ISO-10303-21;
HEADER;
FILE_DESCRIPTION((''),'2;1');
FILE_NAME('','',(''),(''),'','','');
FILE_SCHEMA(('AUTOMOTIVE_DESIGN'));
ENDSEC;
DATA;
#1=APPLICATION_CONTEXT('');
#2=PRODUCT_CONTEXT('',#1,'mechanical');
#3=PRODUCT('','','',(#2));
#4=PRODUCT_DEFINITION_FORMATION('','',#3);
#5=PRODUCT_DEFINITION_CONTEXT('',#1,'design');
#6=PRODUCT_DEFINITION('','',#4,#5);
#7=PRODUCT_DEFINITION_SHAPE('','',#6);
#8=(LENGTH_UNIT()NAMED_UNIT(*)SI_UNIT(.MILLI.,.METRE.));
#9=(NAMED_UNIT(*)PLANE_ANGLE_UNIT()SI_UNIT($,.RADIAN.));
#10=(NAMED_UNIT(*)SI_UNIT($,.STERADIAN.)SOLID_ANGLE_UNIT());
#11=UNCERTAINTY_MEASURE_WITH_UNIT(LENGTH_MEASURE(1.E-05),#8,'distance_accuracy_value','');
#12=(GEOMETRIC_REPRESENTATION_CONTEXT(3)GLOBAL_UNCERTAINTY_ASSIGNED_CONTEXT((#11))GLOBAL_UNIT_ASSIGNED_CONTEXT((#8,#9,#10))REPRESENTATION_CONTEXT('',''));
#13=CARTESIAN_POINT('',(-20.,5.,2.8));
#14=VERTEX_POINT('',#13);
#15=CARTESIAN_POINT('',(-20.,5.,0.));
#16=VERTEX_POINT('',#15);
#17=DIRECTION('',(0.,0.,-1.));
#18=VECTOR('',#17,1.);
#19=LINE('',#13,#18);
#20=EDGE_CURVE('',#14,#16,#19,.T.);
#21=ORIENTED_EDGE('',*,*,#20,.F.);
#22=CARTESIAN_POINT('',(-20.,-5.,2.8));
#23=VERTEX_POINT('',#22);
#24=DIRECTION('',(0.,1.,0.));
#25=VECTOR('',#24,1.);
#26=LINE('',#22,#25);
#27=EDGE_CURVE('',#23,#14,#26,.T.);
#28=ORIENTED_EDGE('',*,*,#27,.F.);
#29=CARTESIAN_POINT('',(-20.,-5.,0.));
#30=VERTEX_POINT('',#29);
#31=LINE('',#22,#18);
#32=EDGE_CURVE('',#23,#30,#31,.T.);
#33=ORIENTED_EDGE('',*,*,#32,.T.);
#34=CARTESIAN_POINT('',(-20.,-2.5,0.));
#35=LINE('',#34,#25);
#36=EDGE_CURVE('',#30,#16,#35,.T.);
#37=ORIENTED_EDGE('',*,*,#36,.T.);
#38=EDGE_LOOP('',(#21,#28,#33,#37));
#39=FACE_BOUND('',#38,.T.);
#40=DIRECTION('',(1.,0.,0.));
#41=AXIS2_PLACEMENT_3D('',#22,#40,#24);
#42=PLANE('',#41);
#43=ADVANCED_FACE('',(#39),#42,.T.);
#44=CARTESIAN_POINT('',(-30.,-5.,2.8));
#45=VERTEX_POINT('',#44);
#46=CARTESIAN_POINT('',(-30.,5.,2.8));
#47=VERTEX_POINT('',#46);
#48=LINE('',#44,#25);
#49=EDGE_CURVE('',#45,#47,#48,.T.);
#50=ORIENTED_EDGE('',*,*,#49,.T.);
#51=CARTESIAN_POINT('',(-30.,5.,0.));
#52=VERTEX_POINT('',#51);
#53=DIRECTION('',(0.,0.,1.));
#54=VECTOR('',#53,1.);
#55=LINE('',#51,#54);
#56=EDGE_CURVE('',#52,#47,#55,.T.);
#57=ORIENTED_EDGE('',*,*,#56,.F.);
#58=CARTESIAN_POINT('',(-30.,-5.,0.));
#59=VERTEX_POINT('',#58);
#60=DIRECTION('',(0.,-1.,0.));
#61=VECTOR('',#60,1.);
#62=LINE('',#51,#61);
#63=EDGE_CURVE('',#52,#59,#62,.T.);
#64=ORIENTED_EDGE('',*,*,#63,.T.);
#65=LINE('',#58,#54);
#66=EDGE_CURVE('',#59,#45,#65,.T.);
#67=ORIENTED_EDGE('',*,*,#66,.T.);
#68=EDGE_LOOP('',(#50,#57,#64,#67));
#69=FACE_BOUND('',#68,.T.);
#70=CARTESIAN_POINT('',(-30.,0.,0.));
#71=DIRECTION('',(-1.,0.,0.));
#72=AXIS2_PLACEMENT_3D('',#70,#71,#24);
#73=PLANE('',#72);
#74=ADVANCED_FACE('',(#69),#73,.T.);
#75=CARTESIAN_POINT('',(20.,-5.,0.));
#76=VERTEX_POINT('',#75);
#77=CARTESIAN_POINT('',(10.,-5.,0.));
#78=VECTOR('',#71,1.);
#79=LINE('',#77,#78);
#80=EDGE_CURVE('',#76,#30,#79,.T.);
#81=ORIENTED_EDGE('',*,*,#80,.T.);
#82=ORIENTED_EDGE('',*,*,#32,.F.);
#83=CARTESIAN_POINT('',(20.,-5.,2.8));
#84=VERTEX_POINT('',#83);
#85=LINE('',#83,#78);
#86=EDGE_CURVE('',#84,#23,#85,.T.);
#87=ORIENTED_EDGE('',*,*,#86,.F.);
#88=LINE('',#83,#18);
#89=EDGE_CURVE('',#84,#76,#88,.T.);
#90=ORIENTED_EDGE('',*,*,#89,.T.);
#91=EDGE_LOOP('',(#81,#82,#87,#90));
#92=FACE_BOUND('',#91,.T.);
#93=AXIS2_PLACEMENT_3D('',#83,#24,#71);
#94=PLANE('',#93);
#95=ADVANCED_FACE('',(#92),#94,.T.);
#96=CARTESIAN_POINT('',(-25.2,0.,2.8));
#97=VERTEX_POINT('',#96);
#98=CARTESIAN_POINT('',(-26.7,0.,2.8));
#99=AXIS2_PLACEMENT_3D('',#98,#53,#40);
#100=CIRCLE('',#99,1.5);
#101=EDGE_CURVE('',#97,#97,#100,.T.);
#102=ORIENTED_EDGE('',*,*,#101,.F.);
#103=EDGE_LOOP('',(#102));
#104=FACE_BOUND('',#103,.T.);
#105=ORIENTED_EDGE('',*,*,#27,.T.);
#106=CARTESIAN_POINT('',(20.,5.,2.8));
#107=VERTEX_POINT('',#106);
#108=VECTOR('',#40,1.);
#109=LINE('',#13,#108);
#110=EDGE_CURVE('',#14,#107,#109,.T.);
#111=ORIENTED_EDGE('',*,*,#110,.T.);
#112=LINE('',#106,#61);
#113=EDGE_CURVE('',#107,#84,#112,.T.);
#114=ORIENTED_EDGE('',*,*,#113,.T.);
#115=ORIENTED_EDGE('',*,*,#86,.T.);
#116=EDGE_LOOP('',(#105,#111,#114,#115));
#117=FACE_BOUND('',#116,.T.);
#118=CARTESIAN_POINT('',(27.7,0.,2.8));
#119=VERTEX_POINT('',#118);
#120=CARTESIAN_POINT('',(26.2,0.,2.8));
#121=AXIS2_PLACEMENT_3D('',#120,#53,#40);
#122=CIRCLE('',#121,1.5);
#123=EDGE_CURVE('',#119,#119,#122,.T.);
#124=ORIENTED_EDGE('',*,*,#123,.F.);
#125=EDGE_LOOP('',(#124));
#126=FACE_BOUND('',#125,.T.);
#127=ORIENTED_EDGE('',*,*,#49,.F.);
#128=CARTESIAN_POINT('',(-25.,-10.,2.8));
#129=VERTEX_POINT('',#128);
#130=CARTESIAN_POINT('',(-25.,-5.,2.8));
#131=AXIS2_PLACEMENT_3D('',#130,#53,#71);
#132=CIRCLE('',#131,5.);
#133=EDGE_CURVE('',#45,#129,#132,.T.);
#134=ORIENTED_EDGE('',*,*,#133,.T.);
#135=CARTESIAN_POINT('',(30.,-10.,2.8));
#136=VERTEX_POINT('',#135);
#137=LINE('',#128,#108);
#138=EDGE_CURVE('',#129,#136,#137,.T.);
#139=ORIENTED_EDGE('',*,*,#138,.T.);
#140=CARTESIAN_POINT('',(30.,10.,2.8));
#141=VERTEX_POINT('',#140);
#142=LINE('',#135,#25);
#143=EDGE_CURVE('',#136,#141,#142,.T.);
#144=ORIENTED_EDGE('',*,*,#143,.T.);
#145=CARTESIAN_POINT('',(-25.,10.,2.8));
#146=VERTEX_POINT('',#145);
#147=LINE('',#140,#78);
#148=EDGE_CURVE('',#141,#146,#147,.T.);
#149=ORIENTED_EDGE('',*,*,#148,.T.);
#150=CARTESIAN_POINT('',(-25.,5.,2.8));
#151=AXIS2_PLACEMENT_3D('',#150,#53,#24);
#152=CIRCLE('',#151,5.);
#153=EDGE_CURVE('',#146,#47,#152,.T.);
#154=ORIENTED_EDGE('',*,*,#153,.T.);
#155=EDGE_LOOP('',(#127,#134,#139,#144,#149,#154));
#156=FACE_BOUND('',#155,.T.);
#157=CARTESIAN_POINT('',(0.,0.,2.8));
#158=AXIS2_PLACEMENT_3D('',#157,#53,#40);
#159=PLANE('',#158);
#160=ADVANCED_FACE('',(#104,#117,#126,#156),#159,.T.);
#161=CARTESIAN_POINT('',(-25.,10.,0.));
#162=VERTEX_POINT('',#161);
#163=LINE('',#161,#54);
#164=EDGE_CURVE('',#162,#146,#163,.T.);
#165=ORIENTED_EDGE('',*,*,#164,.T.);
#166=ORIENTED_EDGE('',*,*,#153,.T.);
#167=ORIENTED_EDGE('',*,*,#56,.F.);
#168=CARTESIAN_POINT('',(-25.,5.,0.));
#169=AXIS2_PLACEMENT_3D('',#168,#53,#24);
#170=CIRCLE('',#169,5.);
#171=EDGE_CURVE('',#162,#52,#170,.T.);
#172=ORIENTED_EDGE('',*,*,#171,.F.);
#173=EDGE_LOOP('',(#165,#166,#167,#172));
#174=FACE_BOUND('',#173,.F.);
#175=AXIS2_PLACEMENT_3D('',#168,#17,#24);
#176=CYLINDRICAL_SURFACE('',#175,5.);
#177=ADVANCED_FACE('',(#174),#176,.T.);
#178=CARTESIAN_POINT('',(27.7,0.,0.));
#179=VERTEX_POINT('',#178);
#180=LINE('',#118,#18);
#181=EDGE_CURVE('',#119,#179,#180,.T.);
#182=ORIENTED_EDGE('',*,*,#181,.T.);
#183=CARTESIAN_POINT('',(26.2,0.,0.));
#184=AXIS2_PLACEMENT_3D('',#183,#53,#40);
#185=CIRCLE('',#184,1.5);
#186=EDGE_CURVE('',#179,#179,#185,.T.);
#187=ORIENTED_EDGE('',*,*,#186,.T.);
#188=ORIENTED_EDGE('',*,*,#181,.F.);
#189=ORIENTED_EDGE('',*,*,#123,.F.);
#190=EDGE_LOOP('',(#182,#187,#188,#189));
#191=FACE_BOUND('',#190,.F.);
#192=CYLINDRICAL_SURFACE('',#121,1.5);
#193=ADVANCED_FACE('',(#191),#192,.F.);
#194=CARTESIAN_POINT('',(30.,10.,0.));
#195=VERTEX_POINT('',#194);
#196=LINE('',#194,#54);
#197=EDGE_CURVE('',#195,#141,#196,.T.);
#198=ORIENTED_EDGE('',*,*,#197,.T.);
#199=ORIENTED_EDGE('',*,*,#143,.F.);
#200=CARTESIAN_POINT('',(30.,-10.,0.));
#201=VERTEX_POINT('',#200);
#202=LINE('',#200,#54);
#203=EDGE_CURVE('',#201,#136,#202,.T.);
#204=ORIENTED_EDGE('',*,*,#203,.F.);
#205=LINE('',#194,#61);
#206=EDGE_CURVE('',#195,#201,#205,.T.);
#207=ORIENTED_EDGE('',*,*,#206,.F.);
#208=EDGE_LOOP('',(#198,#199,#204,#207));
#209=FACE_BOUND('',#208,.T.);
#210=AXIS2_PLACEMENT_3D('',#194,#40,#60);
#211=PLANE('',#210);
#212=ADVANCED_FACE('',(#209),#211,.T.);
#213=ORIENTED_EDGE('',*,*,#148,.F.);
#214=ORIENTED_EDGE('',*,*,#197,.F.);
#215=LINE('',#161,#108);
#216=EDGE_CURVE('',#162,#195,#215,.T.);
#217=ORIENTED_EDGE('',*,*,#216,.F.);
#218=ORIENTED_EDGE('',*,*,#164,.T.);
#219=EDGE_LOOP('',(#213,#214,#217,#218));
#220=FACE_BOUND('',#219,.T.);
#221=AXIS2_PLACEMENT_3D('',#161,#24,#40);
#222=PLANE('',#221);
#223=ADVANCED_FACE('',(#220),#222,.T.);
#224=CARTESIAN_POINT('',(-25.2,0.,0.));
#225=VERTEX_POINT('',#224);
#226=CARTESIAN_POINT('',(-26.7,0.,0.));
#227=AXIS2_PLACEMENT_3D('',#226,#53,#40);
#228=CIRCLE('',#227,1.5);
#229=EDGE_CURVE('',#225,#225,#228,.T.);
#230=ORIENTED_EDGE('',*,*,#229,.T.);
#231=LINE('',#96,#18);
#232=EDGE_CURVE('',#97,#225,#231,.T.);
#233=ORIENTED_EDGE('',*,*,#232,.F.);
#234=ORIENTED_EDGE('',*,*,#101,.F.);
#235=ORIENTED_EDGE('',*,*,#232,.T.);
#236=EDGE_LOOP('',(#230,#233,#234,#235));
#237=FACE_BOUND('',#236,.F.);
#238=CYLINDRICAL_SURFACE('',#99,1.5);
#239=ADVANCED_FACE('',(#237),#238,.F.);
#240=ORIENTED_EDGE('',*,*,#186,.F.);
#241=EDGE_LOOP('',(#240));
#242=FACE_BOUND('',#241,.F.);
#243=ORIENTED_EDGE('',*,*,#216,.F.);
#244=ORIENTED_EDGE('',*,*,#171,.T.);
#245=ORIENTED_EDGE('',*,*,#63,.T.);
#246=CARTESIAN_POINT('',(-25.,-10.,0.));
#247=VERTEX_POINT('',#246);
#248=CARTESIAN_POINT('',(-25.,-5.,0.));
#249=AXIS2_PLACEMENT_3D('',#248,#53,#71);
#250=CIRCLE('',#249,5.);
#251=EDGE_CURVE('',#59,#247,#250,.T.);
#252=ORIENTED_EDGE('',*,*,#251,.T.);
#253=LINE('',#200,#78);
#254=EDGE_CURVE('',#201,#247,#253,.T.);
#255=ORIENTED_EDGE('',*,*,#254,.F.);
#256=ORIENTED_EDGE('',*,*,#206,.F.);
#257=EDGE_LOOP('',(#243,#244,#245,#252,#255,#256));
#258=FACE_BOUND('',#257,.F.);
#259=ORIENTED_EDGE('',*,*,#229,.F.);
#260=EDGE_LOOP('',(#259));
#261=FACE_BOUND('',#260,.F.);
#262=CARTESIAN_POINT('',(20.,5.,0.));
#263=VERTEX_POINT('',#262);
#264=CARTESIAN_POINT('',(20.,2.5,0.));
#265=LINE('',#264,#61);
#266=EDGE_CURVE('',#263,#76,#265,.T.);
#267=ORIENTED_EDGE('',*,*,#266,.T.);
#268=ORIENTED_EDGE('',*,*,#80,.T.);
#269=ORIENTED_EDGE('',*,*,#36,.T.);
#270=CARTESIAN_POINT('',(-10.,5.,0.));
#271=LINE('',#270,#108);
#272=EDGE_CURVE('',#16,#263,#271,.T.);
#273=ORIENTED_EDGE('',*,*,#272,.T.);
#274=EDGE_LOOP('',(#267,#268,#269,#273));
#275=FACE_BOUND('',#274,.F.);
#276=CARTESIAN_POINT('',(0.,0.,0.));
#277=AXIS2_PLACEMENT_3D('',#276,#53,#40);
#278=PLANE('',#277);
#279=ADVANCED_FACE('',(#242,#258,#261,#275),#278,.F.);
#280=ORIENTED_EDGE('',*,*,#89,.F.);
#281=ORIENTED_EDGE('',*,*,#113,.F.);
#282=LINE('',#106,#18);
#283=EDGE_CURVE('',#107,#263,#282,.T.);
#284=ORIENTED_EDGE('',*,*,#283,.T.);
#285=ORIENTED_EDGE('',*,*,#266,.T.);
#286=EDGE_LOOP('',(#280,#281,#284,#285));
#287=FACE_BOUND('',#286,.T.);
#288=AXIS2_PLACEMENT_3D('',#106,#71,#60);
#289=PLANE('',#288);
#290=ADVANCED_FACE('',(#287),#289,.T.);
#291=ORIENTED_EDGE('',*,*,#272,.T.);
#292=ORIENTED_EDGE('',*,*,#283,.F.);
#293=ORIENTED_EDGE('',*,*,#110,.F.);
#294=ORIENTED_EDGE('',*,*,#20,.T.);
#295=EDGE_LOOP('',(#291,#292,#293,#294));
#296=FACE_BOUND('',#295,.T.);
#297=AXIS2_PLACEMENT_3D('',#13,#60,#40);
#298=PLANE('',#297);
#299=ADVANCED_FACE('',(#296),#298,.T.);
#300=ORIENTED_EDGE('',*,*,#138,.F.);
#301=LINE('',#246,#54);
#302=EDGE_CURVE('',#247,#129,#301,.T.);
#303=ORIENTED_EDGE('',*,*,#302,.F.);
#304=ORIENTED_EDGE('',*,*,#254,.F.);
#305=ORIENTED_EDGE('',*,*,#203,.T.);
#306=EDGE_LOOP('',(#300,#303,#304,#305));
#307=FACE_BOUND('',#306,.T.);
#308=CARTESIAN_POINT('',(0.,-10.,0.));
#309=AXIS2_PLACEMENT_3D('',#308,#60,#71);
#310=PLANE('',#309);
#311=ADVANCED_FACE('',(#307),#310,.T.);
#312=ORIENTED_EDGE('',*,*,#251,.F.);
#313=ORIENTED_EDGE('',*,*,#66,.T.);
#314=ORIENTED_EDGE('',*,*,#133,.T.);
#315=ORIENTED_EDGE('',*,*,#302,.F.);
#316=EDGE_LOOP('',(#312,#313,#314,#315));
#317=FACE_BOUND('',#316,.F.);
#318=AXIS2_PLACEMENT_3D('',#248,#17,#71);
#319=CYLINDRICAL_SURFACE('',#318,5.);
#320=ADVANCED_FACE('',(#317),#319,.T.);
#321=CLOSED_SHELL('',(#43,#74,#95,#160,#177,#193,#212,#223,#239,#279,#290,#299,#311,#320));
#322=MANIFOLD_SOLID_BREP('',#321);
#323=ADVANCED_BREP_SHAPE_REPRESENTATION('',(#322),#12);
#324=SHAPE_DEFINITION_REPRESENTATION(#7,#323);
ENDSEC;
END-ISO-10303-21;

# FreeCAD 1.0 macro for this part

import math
import FreeCAD as App
import Part
import Sketcher

V = App.Vector
Q = App.Units.Quantity


def add_polygon(sketch, points):
    """Adds a closed chain of lines whose ends are joined by coincident constraints."""
    first, n = sketch.GeometryCount, len(points)
    for a, b in zip(points, points[1:] + points[:1]):
        sketch.addGeometry(Part.LineSegment(App.Vector(*a, 0), App.Vector(*b, 0)), False)
    for i in range(n):
        sketch.addConstraint(Sketcher.Constraint("Coincident", first + i, 2, first + (i + 1) % n, 1))

doc = App.newDocument("Part")
body = doc.addObject("PartDesign::Body", "Body")

# Sketch on XY plane
sketch1 = body.newObject("Sketcher::SketchObject", "Sketch")
sketch1.AttachmentSupport = (doc.getObject("XY_Plane"), [""])
sketch1.MapMode = "FlatFace"
sketch1.addGeometry(Part.LineSegment(V(-30, 5, 0), V(-30, -5, 0)), False)
sketch1.addGeometry(Part.ArcOfCircle(Part.Circle(V(-25, -5, 0), V(0, 0, 1), 5), math.radians(180), math.radians(270)), False)
sketch1.addGeometry(Part.LineSegment(V(-25, -10, 0), V(30, -10, 0)), False)
sketch1.addGeometry(Part.LineSegment(V(30, -10, 0), V(30, 10, 0)), False)
sketch1.addGeometry(Part.LineSegment(V(30, 10, 0), V(-25, 10, 0)), False)
sketch1.addGeometry(Part.ArcOfCircle(Part.Circle(V(-25, 5, 0), V(0, 0, 1), 5), math.radians(90), math.radians(180)), False)
sketch1.addConstraint(Sketcher.Constraint("Tangent", 0, 2, 1, 1))
sketch1.addConstraint(Sketcher.Constraint("Tangent", 1, 2, 2, 1))
sketch1.addConstraint(Sketcher.Constraint("Coincident", 2, 2, 3, 1))
sketch1.addConstraint(Sketcher.Constraint("Coincident", 3, 2, 4, 1))
sketch1.addConstraint(Sketcher.Constraint("Tangent", 4, 2, 5, 1))
sketch1.addConstraint(Sketcher.Constraint("Tangent", 5, 2, 0, 1))
sketch1.addConstraint(Sketcher.Constraint("Vertical", 0))
sketch1.addConstraint(Sketcher.Constraint("Horizontal", 2))
sketch1.addConstraint(Sketcher.Constraint("Vertical", 3))
sketch1.addConstraint(Sketcher.Constraint("Horizontal", 4))
sketch1.addConstraint(Sketcher.Constraint("Equal", 1, 5))
sketch1.addConstraint(Sketcher.Constraint("Radius", 1, Q("5 mm")))
sketch1.addConstraint(Sketcher.Constraint("DistanceY", 0, 2, 0, 1, Q("10 mm")))
sketch1.addConstraint(Sketcher.Constraint("DistanceY", 1, 3, -1, 1, Q("5 mm")))
sketch1.addConstraint(Sketcher.Constraint("DistanceX", 0, 2, -1, 1, Q("30 mm")))
sketch1.addConstraint(Sketcher.Constraint("DistanceX", -1, 1, 2, 2, Q("30 mm")))
pad1 = body.newObject("PartDesign::Pad", "Pad")
pad1.Profile = sketch1
pad1.Length = 2.8

# Sketch on XY plane
sketch2 = body.newObject("Sketcher::SketchObject", "Sketch001")
sketch2.AttachmentSupport = (doc.getObject("XY_Plane"), [""])
sketch2.MapMode = "FlatFace"
sketch2.AttachmentOffset = App.Placement(V(0, 0, 2.8), App.Rotation())
sketch2.addGeometry(Part.Circle(V(-26.7, 0, 0), V(0, 0, 1), 1.5), False)  # 0
sketch2.addGeometry(Part.Circle(V(26.2, 0, 0), V(0, 0, 1), 1.5), False)  # 1
add_polygon(sketch2, [(20, 5), (-20, 5), (-20, -5), (20, -5)])  # lines 2-5
sketch2.addConstraint(Sketcher.Constraint("Horizontal", 2))
sketch2.addConstraint(Sketcher.Constraint("Vertical", 3))
sketch2.addConstraint(Sketcher.Constraint("Horizontal", 4))
sketch2.addConstraint(Sketcher.Constraint("Vertical", 5))
sketch2.addConstraint(Sketcher.Constraint("Equal", 0, 1))
sketch2.addConstraint(Sketcher.Constraint("Symmetric", 2, 2, 4, 2, -1, 1))
sketch2.addConstraint(Sketcher.Constraint("PointOnObject", 0, 3, -1))
sketch2.addConstraint(Sketcher.Constraint("PointOnObject", 1, 3, -1))
sketch2.addConstraint(Sketcher.Constraint("Diameter", 0, Q("3 mm")))
sketch2.addConstraint(Sketcher.Constraint("DistanceX", 2, 2, 2, 1, Q("40 mm")))
sketch2.addConstraint(Sketcher.Constraint("DistanceY", 3, 2, 3, 1, Q("10 mm")))
sketch2.addConstraint(Sketcher.Constraint("DistanceX", 0, 3, -1, 1, Q("26.7 mm")))
sketch2.addConstraint(Sketcher.Constraint("DistanceX", -1, 1, 1, 3, Q("26.2 mm")))
pocket1 = body.newObject("PartDesign::Pocket", "Pocket")
pocket1.Profile = sketch2
pocket1.Length = 10

doc.recompute()
